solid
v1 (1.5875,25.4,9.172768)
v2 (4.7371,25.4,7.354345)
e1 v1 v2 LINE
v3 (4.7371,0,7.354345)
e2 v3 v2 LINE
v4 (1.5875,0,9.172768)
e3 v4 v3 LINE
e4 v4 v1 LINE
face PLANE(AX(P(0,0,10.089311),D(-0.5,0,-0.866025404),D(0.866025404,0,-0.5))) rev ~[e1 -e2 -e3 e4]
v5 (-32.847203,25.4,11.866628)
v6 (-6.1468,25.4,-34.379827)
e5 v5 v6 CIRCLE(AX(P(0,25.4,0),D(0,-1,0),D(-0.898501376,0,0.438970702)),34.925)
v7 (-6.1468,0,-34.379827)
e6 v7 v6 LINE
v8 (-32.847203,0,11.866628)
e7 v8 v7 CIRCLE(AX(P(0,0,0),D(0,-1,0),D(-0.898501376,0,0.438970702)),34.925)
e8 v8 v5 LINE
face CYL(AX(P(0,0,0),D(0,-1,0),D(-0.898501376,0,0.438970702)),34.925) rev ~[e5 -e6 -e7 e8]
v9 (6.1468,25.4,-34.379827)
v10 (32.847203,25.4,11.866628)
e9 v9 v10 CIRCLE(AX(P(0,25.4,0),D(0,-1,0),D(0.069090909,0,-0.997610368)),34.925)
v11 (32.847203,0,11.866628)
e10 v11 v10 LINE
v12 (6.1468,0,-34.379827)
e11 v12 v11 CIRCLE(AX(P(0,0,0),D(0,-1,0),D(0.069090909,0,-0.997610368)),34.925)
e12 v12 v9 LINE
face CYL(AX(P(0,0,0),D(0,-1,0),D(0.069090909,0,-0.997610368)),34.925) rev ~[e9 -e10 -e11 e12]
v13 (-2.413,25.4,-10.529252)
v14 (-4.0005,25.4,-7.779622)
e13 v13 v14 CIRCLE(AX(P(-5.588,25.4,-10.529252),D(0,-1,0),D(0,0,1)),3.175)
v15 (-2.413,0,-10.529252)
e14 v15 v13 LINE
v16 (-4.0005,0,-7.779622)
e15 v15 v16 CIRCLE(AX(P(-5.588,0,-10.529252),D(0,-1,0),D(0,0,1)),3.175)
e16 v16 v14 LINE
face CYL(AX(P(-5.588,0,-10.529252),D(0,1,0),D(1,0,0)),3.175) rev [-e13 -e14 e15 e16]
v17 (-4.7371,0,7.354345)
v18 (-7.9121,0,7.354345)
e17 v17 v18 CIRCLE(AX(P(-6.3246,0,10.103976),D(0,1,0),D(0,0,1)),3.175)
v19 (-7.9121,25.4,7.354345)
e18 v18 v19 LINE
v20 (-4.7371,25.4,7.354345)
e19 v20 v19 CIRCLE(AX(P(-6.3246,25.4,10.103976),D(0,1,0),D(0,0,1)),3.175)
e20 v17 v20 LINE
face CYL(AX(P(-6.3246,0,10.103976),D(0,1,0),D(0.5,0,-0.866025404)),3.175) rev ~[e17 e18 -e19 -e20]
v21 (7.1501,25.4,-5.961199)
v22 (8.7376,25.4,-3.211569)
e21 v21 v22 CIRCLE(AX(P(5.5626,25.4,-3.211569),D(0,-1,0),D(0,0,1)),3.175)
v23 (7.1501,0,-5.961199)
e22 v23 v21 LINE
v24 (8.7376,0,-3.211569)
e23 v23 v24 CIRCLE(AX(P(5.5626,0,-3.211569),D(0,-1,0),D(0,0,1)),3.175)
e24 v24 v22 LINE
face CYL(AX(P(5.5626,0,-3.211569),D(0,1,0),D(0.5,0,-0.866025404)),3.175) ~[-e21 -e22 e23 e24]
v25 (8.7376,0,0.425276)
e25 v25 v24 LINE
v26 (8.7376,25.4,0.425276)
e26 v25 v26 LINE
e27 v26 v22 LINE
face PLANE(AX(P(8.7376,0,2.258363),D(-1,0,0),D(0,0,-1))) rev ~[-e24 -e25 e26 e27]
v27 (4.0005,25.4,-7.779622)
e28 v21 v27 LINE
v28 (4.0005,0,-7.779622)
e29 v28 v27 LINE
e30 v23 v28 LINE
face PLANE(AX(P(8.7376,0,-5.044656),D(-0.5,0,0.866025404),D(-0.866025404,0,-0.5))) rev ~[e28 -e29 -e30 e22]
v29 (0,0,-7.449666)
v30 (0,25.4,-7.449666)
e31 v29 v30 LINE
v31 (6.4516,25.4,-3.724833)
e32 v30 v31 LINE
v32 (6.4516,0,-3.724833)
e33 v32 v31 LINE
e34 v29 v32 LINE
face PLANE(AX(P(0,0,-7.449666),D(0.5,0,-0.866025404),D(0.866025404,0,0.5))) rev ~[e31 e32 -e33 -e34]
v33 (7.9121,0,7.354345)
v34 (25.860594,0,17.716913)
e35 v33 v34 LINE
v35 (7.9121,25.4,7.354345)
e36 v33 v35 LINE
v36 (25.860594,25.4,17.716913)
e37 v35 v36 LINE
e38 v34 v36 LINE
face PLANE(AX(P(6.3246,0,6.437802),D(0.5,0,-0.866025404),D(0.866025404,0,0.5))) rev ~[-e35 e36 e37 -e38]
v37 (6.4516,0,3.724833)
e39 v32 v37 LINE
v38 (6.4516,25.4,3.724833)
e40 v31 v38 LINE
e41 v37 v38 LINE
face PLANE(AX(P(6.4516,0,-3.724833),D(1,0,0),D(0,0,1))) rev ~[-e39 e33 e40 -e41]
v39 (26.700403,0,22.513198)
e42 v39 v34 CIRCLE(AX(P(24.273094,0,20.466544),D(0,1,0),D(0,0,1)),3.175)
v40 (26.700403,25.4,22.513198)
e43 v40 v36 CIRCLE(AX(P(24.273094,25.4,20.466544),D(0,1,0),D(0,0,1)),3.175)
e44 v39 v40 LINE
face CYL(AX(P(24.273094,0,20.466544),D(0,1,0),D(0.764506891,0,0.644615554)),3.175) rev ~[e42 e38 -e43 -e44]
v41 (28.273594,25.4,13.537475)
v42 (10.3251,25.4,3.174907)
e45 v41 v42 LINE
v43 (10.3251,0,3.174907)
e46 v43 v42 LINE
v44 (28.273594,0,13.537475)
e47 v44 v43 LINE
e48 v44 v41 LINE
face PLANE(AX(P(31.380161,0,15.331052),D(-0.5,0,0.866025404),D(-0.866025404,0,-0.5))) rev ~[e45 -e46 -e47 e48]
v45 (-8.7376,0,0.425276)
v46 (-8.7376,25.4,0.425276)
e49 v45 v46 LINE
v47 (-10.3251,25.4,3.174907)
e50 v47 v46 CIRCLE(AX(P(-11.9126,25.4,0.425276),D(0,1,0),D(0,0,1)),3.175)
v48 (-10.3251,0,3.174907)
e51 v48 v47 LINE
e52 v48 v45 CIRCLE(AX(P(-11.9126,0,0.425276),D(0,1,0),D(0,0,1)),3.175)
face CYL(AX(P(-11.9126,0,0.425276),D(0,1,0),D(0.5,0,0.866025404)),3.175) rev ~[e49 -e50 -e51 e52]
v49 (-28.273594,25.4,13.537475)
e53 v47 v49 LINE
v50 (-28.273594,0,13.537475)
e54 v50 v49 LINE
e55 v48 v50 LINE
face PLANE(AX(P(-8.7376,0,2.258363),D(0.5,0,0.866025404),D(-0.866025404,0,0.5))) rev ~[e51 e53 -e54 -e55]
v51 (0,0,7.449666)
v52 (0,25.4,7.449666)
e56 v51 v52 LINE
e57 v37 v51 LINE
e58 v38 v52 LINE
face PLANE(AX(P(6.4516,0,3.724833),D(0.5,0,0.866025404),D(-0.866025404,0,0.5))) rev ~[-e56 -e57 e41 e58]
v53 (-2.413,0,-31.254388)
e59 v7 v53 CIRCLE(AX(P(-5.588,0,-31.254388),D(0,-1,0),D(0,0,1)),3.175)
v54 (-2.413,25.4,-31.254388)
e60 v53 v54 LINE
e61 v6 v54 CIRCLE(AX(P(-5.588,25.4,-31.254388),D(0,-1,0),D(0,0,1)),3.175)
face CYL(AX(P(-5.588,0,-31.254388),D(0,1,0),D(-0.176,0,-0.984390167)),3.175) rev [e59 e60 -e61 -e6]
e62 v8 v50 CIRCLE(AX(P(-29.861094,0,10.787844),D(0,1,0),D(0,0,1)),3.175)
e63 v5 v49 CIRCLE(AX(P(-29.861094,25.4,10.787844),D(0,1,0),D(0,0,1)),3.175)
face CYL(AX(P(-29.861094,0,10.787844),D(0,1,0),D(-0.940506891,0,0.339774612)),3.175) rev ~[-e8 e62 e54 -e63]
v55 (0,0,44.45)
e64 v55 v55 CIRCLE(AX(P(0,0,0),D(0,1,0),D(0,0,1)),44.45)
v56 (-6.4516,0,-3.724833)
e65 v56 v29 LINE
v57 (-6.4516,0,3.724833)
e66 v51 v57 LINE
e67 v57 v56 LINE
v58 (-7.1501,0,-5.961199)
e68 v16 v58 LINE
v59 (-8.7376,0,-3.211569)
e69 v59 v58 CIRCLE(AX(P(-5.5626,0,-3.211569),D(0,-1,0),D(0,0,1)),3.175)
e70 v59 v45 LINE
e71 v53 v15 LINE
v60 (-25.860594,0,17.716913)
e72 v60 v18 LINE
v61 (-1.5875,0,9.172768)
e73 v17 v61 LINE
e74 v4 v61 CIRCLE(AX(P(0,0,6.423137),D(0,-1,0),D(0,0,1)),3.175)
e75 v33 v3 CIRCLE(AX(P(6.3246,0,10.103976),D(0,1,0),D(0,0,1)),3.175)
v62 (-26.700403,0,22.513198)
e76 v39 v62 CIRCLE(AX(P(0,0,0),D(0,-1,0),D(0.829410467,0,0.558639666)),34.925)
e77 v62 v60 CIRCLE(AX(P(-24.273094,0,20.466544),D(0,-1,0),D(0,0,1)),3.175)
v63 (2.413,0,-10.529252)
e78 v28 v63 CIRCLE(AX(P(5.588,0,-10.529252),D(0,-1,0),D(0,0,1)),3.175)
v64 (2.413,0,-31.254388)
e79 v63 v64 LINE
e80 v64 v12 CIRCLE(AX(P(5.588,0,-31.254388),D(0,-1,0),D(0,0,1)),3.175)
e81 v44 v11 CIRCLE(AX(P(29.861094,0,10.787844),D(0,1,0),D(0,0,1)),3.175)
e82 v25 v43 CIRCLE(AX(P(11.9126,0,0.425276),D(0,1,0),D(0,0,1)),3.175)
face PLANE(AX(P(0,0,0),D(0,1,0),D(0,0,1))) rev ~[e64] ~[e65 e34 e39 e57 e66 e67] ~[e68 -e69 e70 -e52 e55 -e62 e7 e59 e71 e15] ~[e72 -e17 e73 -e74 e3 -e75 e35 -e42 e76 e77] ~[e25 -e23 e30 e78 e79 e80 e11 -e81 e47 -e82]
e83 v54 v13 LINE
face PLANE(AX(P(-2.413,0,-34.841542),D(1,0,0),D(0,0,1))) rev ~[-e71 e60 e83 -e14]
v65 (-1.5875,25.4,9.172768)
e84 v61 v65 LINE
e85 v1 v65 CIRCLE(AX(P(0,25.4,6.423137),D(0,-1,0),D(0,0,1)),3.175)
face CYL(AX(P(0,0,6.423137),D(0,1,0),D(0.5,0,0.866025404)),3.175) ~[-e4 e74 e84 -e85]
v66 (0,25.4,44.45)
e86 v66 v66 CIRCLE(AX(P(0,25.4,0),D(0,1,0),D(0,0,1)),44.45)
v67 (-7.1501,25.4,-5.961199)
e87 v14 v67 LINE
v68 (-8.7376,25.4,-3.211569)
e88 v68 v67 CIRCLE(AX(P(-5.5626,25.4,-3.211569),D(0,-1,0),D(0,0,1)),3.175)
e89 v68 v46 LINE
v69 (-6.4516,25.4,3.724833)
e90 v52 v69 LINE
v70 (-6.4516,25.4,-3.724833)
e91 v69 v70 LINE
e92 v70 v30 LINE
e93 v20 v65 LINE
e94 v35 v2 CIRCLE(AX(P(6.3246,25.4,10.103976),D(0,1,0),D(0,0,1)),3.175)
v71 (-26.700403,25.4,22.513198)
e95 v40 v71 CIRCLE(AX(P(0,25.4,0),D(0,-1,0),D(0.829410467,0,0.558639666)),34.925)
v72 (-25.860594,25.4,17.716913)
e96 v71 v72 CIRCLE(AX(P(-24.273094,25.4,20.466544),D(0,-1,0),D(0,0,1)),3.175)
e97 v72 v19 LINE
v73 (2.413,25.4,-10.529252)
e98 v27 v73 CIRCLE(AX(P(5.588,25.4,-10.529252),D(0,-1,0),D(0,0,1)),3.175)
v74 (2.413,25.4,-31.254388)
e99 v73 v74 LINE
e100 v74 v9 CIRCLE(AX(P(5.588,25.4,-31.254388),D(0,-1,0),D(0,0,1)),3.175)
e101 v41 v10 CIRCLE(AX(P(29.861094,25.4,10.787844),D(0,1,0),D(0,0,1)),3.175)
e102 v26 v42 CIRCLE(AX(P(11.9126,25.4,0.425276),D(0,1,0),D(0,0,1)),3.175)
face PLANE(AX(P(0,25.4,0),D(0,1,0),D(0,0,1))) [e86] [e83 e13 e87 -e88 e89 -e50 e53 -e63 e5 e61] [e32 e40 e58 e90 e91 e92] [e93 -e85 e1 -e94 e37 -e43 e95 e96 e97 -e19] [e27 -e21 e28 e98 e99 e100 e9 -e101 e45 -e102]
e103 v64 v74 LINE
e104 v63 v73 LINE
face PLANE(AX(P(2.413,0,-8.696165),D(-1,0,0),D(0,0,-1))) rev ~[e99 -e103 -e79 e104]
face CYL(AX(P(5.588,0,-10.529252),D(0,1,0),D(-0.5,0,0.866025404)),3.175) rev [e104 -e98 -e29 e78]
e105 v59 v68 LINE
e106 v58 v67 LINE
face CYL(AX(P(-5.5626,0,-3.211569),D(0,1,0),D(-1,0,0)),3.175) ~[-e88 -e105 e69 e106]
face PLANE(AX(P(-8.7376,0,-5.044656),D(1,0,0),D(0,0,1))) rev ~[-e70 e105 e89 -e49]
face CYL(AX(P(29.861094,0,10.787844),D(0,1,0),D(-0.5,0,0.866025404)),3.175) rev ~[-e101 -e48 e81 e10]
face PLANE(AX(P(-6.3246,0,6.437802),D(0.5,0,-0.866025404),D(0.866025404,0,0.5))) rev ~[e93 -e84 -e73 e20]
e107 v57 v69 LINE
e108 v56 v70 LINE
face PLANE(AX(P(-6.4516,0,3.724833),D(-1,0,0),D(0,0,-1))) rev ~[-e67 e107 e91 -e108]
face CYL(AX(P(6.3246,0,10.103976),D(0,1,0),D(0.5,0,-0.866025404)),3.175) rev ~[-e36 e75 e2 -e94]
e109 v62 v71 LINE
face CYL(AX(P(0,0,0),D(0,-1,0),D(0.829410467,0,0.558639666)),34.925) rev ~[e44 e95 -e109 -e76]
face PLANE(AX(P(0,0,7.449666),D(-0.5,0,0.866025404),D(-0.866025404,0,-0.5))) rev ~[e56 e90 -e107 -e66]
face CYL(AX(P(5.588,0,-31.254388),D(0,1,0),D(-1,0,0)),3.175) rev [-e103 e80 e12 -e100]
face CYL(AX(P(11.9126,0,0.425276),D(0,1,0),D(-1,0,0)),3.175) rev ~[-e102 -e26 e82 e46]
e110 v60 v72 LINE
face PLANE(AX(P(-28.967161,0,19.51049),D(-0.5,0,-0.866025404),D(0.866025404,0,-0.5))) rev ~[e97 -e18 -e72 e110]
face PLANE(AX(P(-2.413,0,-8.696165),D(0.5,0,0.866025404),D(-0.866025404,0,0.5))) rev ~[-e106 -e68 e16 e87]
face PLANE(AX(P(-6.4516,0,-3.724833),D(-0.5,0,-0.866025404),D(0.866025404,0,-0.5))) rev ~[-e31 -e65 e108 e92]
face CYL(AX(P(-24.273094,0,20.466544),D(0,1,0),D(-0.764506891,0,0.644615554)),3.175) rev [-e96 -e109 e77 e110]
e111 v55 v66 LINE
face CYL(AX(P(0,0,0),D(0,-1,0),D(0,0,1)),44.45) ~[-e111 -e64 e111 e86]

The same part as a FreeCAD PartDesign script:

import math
import FreeCAD as App
import Part
import Sketcher
from FreeCAD import Vector
Q = App.Units.Quantity


def edges_at(feature, points):
    """Names of the edges that pass closest to the given points."""
    edges = feature.Shape.Edges
    near = lambda p: min(range(len(edges)), key=lambda i: edges[i].distToShape(Part.Vertex(*p))[0])
    return sorted({f"Edge{near(p) + 1}" for p in points})

doc = App.newDocument("Part")
body = doc.addObject("PartDesign::Body", "Body")

# Sketch on XZ plane
sketch1 = doc.addObject("Sketcher::SketchObject", "Sketch")
body.addObject(sketch1)
sketch1.AttachmentSupport = (doc.XZ_Plane, [""])
sketch1.MapMode = "FlatFace"
sketch1.addGeometry([
    Part.Circle(Vector(0, 0, 0), Vector(0, 0, 1), 44),  # 0
    Part.ArcOfCircle(Part.Circle(Vector(0, 0, 0), Vector(0, 0, 1), 35), math.radians(154), math.radians(266)),  # 1
    Part.LineSegment(Vector(-2, -35, 0), Vector(-2, -9, 0)),  # 2
    Part.LineSegment(Vector(-2, -9, 0), Vector(-9, -5, 0)),  # 3
    Part.LineSegment(Vector(-9, -5, 0), Vector(-9, 2, 0)),  # 4
    Part.LineSegment(Vector(-9, 2, 0), Vector(-31, 15, 0)),  # 5
    Part.LineSegment(Vector(-6, 4, 0), Vector(-6, -4, 0)),  # 6
    Part.LineSegment(Vector(-6, -4, 0), Vector(0, -7, 0)),  # 7
    Part.LineSegment(Vector(0, -7, 0), Vector(6, -4, 0)),  # 8
    Part.LineSegment(Vector(6, -4, 0), Vector(6, 4, 0)),  # 9
    Part.LineSegment(Vector(6, 4, 0), Vector(0, 7, 0)),  # 10
    Part.LineSegment(Vector(0, 7, 0), Vector(-6, 4, 0)),  # 11
    Part.LineSegment(Vector(9, -5, 0), Vector(2, -9, 0)),  # 12
    Part.LineSegment(Vector(2, -9, 0), Vector(2, -35, 0)),  # 13
    Part.ArcOfCircle(Part.Circle(Vector(0, 0, 0), Vector(0, 0, 1), 35), math.radians(-86), math.radians(26)),  # 14
    Part.LineSegment(Vector(31, 15, 0), Vector(9, 2, 0)),  # 15
    Part.LineSegment(Vector(9, 2, 0), Vector(9, -5, 0)),  # 16
    Part.ArcOfCircle(Part.Circle(Vector(0, 0, 0), Vector(0, 0, 1), 35), math.radians(34), math.radians(146)),  # 17
    Part.LineSegment(Vector(-29, 20, 0), Vector(-6, 6, 0)),  # 18
    Part.LineSegment(Vector(-6, 6, 0), Vector(0, 10, 0)),  # 19
    Part.LineSegment(Vector(0, 10, 0), Vector(6, 6, 0)),  # 20
    Part.LineSegment(Vector(6, 6, 0), Vector(29, 20, 0)),  # 21
], False)
sketch1.addConstraint([
    Sketcher.Constraint("Coincident", 1, 2, 2, 1),
    Sketcher.Constraint("Coincident", 2, 2, 3, 1),
    Sketcher.Constraint("Coincident", 3, 2, 4, 1),
    Sketcher.Constraint("Coincident", 4, 2, 5, 1),
    Sketcher.Constraint("Coincident", 5, 2, 1, 1),
    Sketcher.Constraint("Coincident", 6, 2, 7, 1),
    Sketcher.Constraint("Coincident", 7, 2, 8, 1),
    Sketcher.Constraint("Coincident", 8, 2, 9, 1),
    Sketcher.Constraint("Coincident", 9, 2, 10, 1),
    Sketcher.Constraint("Coincident", 10, 2, 11, 1),
    Sketcher.Constraint("Coincident", 11, 2, 6, 1),
    Sketcher.Constraint("Coincident", 12, 2, 13, 1),
    Sketcher.Constraint("Coincident", 13, 2, 14, 1),
    Sketcher.Constraint("Coincident", 14, 2, 15, 1),
    Sketcher.Constraint("Coincident", 15, 2, 16, 1),
    Sketcher.Constraint("Coincident", 16, 2, 12, 1),
    Sketcher.Constraint("Coincident", 17, 2, 18, 1),
    Sketcher.Constraint("Coincident", 18, 2, 19, 1),
    Sketcher.Constraint("Coincident", 19, 2, 20, 1),
    Sketcher.Constraint("Coincident", 20, 2, 21, 1),
    Sketcher.Constraint("Coincident", 21, 2, 17, 1),
    Sketcher.Constraint("Vertical", 2),
    Sketcher.Constraint("Vertical", 4),
    Sketcher.Constraint("Vertical", 6),
    Sketcher.Constraint("Vertical", 9),
    Sketcher.Constraint("Vertical", 13),
    Sketcher.Constraint("Vertical", 16),
    Sketcher.Constraint("Coincident", 0, 3, -1, 1),
    Sketcher.Constraint("Coincident", 1, 3, -1, 1),
    Sketcher.Constraint("Coincident", 14, 3, -1, 1),
    Sketcher.Constraint("Coincident", 17, 3, -1, 1),
    Sketcher.Constraint("Equal", 1, 14),
    Sketcher.Constraint("Equal", 14, 17),
    Sketcher.Constraint("Symmetric", 6, 2, 9, 2, -1, 1),
    Sketcher.Constraint("Symmetric", 7, 2, 10, 2, -1, 1),
    Sketcher.Constraint("Symmetric", 2, 2, 12, 2, -2),
    Sketcher.Constraint("Symmetric", 4, 2, 15, 2, -2),
    Sketcher.Constraint("Symmetric", 18, 2, 20, 2, -2),
    Sketcher.Constraint("PointOnObject", 7, 2, -2),
    Sketcher.Constraint("PointOnObject", 19, 2, -2),
    Sketcher.Constraint("Parallel", 3, 5),
    Sketcher.Constraint("Parallel", 5, 7),
    Sketcher.Constraint("Parallel", 8, 11),
    Sketcher.Constraint("Parallel", 11, 12),
    Sketcher.Constraint("Parallel", 12, 15),
    Sketcher.Constraint("Parallel", 10, 18),
    Sketcher.Constraint("Parallel", 15, 19),
    Sketcher.Constraint("Parallel", 18, 20),
    Sketcher.Constraint("Parallel", 19, 21),
    Sketcher.Constraint("Equal", 15, 18),
    Sketcher.Constraint("Equal", 12, 19),
    Sketcher.Constraint("Diameter", 0, Q("3.5 in")),
    Sketcher.Constraint("Angle", 3, Q("150 deg")),
    Sketcher.Constraint("Radius", 1, Q("1.375 in")),
    Sketcher.Constraint("DistanceX", 3, 2, 6, 2, Q("0.09 in")),
    Sketcher.Constraint("DistanceX", 2, 2, 12, 2, Q("0.19 in")),
    Sketcher.Constraint("DistanceX", 3, 2, -1, 1, Q("0.344 in")),
    Sketcher.Constraint("DistanceY", 4, 1, 4, 2, 7.303019),
    Sketcher.Constraint("DistanceY", -1, 1, 18, 2, 6.437802),
    Sketcher.Constraint("DistanceY", 2, 2, 7, 2, 1.246499),
])
pad1 = doc.addObject("PartDesign::Pad", "Pad")
body.addObject(pad1)
pad1.Profile = sketch1
pad1.Length = Q("1 in")
pad1.Reversed = True
doc.recompute()

fillet = doc.addObject("PartDesign::Fillet", "Fillet")
body.addObject(fillet)
fillet.Base = (pad1, edges_at(pad1, [
    (-8.738, 12.7, -5.045),
    (-2.413, 12.7, -8.696),
    (-2.413, 12.7, -34.842),
    (-31.38, 12.7, 15.331),
    (-8.738, 12.7, 2.258),
    (31.38, 12.7, 15.331),
    (2.413, 12.7, -34.842),
    (2.413, 12.7, -8.696),
    (8.738, 12.7, -5.045),
    (8.738, 12.7, 2.258),
    (-28.967, 12.7, 19.51),
    (28.967, 12.7, 19.51),
    (6.325, 12.7, 6.438),
    (0, 12.7, 10.089),
    (-6.325, 12.7, 6.438),
]))
fillet.Radius = Q("0.125 in")

doc.recompute()
